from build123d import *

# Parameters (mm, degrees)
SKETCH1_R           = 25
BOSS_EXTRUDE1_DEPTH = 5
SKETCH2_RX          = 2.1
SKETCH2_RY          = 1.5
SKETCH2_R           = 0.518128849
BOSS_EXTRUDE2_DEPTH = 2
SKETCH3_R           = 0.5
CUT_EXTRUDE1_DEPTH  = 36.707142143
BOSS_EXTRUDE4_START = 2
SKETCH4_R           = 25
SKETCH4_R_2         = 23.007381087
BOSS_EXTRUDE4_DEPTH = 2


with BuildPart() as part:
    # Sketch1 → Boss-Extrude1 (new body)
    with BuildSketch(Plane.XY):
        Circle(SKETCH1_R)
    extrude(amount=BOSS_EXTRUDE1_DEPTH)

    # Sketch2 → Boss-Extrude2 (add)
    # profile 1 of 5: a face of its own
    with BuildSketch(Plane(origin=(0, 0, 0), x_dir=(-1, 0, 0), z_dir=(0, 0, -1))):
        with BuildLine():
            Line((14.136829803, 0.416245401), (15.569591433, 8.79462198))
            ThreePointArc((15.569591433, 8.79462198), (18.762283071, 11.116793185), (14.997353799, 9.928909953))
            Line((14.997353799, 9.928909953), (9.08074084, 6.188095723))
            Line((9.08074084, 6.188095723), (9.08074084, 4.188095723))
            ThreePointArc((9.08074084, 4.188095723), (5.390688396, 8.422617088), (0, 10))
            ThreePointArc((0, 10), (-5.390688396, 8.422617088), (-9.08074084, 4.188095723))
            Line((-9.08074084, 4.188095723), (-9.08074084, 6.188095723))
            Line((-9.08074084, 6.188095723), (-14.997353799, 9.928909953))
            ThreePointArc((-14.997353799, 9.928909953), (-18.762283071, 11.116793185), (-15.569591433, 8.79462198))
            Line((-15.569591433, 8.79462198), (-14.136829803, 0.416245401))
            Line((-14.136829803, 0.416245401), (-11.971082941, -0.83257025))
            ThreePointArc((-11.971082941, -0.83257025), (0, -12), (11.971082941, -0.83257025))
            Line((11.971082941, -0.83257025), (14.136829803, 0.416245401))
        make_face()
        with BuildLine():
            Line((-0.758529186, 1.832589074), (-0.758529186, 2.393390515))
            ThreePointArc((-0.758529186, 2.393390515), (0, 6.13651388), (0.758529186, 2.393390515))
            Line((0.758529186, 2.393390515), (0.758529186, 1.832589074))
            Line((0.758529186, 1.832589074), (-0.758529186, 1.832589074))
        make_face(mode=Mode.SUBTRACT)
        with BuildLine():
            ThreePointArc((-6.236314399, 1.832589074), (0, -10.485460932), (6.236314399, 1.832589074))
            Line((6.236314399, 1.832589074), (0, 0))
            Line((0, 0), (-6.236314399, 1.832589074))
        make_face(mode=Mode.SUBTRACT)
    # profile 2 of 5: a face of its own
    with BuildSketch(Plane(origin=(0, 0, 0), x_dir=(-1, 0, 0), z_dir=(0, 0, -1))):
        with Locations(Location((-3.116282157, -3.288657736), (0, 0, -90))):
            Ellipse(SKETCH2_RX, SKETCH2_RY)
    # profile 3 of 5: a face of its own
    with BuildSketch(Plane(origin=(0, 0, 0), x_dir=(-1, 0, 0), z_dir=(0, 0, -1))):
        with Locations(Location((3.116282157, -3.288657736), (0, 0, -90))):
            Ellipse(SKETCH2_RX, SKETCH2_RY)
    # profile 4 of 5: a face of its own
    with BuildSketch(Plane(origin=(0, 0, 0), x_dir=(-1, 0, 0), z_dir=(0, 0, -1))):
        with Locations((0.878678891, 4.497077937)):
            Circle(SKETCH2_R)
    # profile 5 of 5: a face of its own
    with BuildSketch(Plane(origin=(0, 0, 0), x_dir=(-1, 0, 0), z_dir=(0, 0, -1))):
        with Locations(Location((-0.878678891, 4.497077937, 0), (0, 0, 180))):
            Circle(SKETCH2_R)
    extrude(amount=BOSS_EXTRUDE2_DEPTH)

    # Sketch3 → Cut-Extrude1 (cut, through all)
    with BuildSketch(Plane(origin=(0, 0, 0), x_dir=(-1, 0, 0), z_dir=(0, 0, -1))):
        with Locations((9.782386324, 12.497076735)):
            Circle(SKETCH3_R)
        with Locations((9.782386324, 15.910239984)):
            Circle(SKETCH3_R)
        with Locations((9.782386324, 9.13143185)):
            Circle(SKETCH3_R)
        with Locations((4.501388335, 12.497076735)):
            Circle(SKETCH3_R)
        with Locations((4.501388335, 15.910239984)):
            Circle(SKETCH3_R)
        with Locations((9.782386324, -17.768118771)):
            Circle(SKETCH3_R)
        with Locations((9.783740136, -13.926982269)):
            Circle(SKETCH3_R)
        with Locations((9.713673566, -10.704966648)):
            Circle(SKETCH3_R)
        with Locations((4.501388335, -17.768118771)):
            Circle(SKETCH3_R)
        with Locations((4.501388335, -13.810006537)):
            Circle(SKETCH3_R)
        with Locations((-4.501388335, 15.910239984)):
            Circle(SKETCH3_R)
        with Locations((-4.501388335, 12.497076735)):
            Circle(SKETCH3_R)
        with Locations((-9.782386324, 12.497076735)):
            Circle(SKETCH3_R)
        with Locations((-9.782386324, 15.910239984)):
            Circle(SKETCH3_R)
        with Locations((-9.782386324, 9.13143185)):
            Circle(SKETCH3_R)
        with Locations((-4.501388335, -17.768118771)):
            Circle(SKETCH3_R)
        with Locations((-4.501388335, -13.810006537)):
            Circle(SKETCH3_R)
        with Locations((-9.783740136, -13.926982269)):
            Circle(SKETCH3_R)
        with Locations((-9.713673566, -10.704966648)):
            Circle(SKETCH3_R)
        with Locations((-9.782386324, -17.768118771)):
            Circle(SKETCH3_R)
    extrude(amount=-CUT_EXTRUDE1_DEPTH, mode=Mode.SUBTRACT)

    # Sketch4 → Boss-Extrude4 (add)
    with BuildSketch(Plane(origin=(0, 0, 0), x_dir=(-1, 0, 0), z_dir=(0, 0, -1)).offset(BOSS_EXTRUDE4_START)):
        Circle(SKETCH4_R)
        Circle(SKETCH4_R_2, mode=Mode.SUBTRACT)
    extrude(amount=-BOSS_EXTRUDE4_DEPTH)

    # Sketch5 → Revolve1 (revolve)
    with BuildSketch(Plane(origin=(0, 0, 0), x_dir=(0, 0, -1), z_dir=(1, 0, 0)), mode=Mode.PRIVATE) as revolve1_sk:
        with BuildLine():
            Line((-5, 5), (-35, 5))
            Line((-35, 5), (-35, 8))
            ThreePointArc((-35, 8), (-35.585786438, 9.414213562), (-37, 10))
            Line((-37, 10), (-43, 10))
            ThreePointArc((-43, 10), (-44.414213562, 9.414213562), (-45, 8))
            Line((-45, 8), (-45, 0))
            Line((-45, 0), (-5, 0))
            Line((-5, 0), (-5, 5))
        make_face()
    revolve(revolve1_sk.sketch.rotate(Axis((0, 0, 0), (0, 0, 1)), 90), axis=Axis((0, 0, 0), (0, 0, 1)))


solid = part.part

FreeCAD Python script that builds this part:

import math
import FreeCAD as App
import Part
import Sketcher
from FreeCAD import Vector

doc = App.newDocument("Part")
body = doc.addObject("PartDesign::Body", "Body")

# Sketch on XY plane
sketch1 = body.newObject("Sketcher::SketchObject", "Sketch")
sketch1.AttachmentSupport = (doc.getObject("XY_Plane"), [""])
sketch1.MapMode = "FlatFace"
sketch1.addGeometry(Part.Circle(Vector(0, 0, 0), Vector(0, 0, 1), 25), False)
sketch1.addConstraint([
    Sketcher.Constraint("Coincident", 0, 3, -1, 1),
    Sketcher.Constraint("Diameter", 0, 50.0),
])
pad1 = body.newObject("PartDesign::Pad", "Pad")
pad1.Profile = sketch1
pad1.Length = 5

# Sketch on XY plane
sketch2 = body.newObject("Sketcher::SketchObject", "Sketch001")
sketch2.AttachmentSupport = (doc.getObject("XY_Plane"), [""])
sketch2.MapMode = "FlatFace"
sketch2.addGeometry([
    Part.LineSegment(Vector(-14.13683, 0.416245, 0), Vector(-15.569591, 8.794622, 0)),  # 0
    Part.ArcOfCircle(Part.Circle(Vector(-16.976648, 10.215957, 0), Vector(0, 0, 1), 2), math.radians(-8.251785), math.radians(314.710754)),  # 1
    Part.LineSegment(Vector(-14.997354, 9.92891, 0), Vector(-9.080741, 6.188096, 0)),  # 2
    Part.LineSegment(Vector(-9.080741, 6.188096, 0), Vector(-9.080741, 4.188096, 0)),  # 3
    Part.ArcOfCircle(Part.Circle(Vector(0, 0, 0), Vector(0, 0, 1), 10), math.radians(90), math.radians(155.240546)),  # 4
    Part.ArcOfCircle(Part.Circle(Vector(0, 0, 0), Vector(0, 0, 1), 10), math.radians(24.759454), math.radians(90)),  # 5
    Part.LineSegment(Vector(9.080741, 4.188096, 0), Vector(9.080741, 6.188096, 0)),  # 6
    Part.LineSegment(Vector(9.080741, 6.188096, 0), Vector(14.997354, 9.92891, 0)),  # 7
    Part.ArcOfCircle(Part.Circle(Vector(16.976648, 10.215957, 0), Vector(0, 0, 1), 2), math.radians(-134.710754), math.radians(188.251785)),  # 8
    Part.LineSegment(Vector(15.569591, 8.794622, 0), Vector(14.13683, 0.416245, 0)),  # 9
    Part.LineSegment(Vector(14.13683, 0.416245, 0), Vector(11.971083, -0.83257, 0)),  # 10
    Part.ArcOfCircle(Part.Circle(Vector(0, 0, 0), Vector(0, 0, 1), 12), math.radians(-176.021574), math.radians(-3.978426)),  # 11
    Part.LineSegment(Vector(-11.971083, -0.83257, 0), Vector(-14.13683, 0.416245, 0)),  # 12
    Part.ArcOfCircle(Part.Circle(Vector(0, -2.747793, 0), Vector(0, 0, 1), 7.737668), math.radians(143.70386), math.radians(396.29614)),  # 13
    Part.LineSegment(Vector(6.236314, 1.832589, 0), Vector(0, 0, 0)),  # 14
    Part.LineSegment(Vector(0, 0, 0), Vector(-6.236314, 1.832589, 0)),  # 15
    Part.LineSegment(Vector(-0.758529, 1.832589, 0), Vector(0.758529, 1.832589, 0)),  # 16
    Part.LineSegment(Vector(0.758529, 1.832589, 0), Vector(0.758529, 2.393391, 0)),  # 17
    Part.ArcOfCircle(Part.Circle(Vector(0, 4.188096, 0), Vector(0, 0, 1), 1.948418), math.radians(-67.08873), math.radians(247.08873)),  # 18
    Part.LineSegment(Vector(-0.758529, 2.393391, 0), Vector(-0.758529, 1.832589, 0)),  # 19
    Part.Ellipse(Vector(3.116282, -5.388658, 0), Vector(4.616282, -3.288658, 0), Vector(3.116282, -3.288658, 0)),  # 20
    Part.Ellipse(Vector(-3.116282, -5.388658, 0), Vector(-1.616282, -3.288658, 0), Vector(-3.116282, -3.288658, 0)),  # 21
    Part.Circle(Vector(-0.878679, 4.497078, 0), Vector(0, 0, 1), 0.518129),  # 22
    Part.Circle(Vector(0.878679, 4.497078, 0), Vector(0, 0, 1), 0.518129),  # 23
], False)
sketch2.addConstraint([
    Sketcher.Constraint("Block", 20),
    Sketcher.Constraint("Block", 21),
    Sketcher.Constraint("Coincident", 0, 2, 1, 2),
    Sketcher.Constraint("Coincident", 1, 1, 2, 1),
    Sketcher.Constraint("Coincident", 2, 2, 3, 1),
    Sketcher.Constraint("Coincident", 3, 2, 4, 2),
    Sketcher.Constraint("Tangent", 4, 1, 5, 2),
    Sketcher.Constraint("Coincident", 5, 1, 6, 1),
    Sketcher.Constraint("Coincident", 6, 2, 7, 1),
    Sketcher.Constraint("Coincident", 7, 2, 8, 2),
    Sketcher.Constraint("Coincident", 8, 1, 9, 1),
    Sketcher.Constraint("Coincident", 9, 2, 10, 1),
    Sketcher.Constraint("Coincident", 10, 2, 11, 2),
    Sketcher.Constraint("Coincident", 11, 1, 12, 1),
    Sketcher.Constraint("Coincident", 12, 2, 0, 1),
    Sketcher.Constraint("Coincident", 13, 2, 14, 1),
    Sketcher.Constraint("Coincident", 14, 2, 15, 1),
    Sketcher.Constraint("Coincident", 15, 2, 13, 1),
    Sketcher.Constraint("Coincident", 16, 2, 17, 1),
    Sketcher.Constraint("Coincident", 17, 2, 18, 1),
    Sketcher.Constraint("Coincident", 18, 2, 19, 1),
    Sketcher.Constraint("Coincident", 19, 2, 16, 1),
    Sketcher.Constraint("Vertical", 3),
    Sketcher.Constraint("Vertical", 6),
    Sketcher.Constraint("Horizontal", 16),
    Sketcher.Constraint("Vertical", 17),
    Sketcher.Constraint("Vertical", 19),
    Sketcher.Constraint("Coincident", 4, 3, -1, 1),
    Sketcher.Constraint("Coincident", 11, 3, -1, 1),
    Sketcher.Constraint("Coincident", 14, 2, -1, 1),
    Sketcher.Constraint("Equal", 4, 5),
    Sketcher.Constraint("Equal", 1, 8),
    Sketcher.Constraint("Equal", 22, 23),
    Sketcher.Constraint("Symmetric", 1, 3, 8, 3, -2),
    Sketcher.Constraint("Symmetric", 22, 3, 23, 3, -2),
    Sketcher.Constraint("Symmetric", 2, 2, 6, 2, -2),
    Sketcher.Constraint("Symmetric", 9, 2, 12, 2, -2),
    Sketcher.Constraint("Symmetric", 13, 2, 15, 2, -2),
    Sketcher.Constraint("Symmetric", 17, 2, 18, 2, -2),
    Sketcher.Constraint("PointOnObject", 4, 1, -2),
    Sketcher.Constraint("Horizontal", 18, 3, 3, 2),
    Sketcher.Constraint("Horizontal", 1, 1, 7, 2),
    Sketcher.Constraint("Horizontal", 0, 2, 8, 1),
    Sketcher.Constraint("Horizontal", 10, 2, 11, 1),
    Sketcher.Constraint("Horizontal", 15, 2, 16, 2),
    Sketcher.Constraint("Radius", 1, 2.0),
    Sketcher.Constraint("Radius", 4, 10.0),
    Sketcher.Constraint("Radius", 11, 12.0),
    Sketcher.Constraint("DistanceY", 3, 2, 3, 1, 2.0),
    Sketcher.Constraint("Distance", 2, 7.0),
    Sketcher.Constraint("Distance", 0, 8.5),
    Sketcher.Constraint("Distance", 10, 2.5),
    Sketcher.Constraint("Distance", 14, 6.5),
    Sketcher.Constraint("Radius", 13, 7.737668),
    Sketcher.Constraint("Radius", 18, 1.948418),
    Sketcher.Constraint("Diameter", 22, 1.036258),
    Sketcher.Constraint("DistanceY", 17, 1, 17, 2, 0.560801),
    Sketcher.Constraint("DistanceX", 16, 1, 16, 2, 1.517058),
    Sketcher.Constraint("DistanceX", 22, 3, -1, 1, 0.878679),
    Sketcher.Constraint("DistanceX", 0, 2, -1, 1, 15.569591),
    Sketcher.Constraint("DistanceY", -1, 1, 0, 2, 8.794622),
    Sketcher.Constraint("DistanceY", -1, 1, 1, 1, 9.92891),
    Sketcher.Constraint("DistanceX", 2, 2, -1, 1, 9.080741),
    Sketcher.Constraint("DistanceX", -1, 1, 9, 2, 14.13683),
    Sketcher.Constraint("DistanceY", 13, 3, 22, 3, 7.24487),
])
pad2 = body.newObject("PartDesign::Pad", "Pad001")
pad2.Profile = sketch2
pad2.Length = 2
pad2.Reversed = True

# Sketch on XY plane
sketch3 = body.newObject("Sketcher::SketchObject", "Sketch002")
sketch3.AttachmentSupport = (doc.getObject("XY_Plane"), [""])
sketch3.MapMode = "FlatFace"
sketch3.addGeometry([
    Part.Circle(Vector(-9.8, 12.5, 0), Vector(0, 0, 1), 0.5),  # 0
    Part.Circle(Vector(-9.8, 15.9, 0), Vector(0, 0, 1), 0.5),  # 1
    Part.Circle(Vector(-9.8, 9.1, 0), Vector(0, 0, 1), 0.5),  # 2
    Part.Circle(Vector(-4.5, 12.5, 0), Vector(0, 0, 1), 0.5),  # 3
    Part.Circle(Vector(-4.5, 15.9, 0), Vector(0, 0, 1), 0.5),  # 4
    Part.Circle(Vector(-9.8, -17.8, 0), Vector(0, 0, 1), 0.5),  # 5
    Part.Circle(Vector(-9.8, -13.9, 0), Vector(0, 0, 1), 0.5),  # 6
    Part.Circle(Vector(-9.7, -10.7, 0), Vector(0, 0, 1), 0.5),  # 7
    Part.Circle(Vector(-4.5, -17.8, 0), Vector(0, 0, 1), 0.5),  # 8
    Part.Circle(Vector(-4.5, -13.8, 0), Vector(0, 0, 1), 0.5),  # 9
    Part.Circle(Vector(4.5, 15.9, 0), Vector(0, 0, 1), 0.5),  # 10
    Part.Circle(Vector(4.5, 12.5, 0), Vector(0, 0, 1), 0.5),  # 11
    Part.Circle(Vector(9.8, 12.5, 0), Vector(0, 0, 1), 0.5),  # 12
    Part.Circle(Vector(9.8, 15.9, 0), Vector(0, 0, 1), 0.5),  # 13
    Part.Circle(Vector(9.8, 9.1, 0), Vector(0, 0, 1), 0.5),  # 14
    Part.Circle(Vector(4.5, -17.8, 0), Vector(0, 0, 1), 0.5),  # 15
    Part.Circle(Vector(4.5, -13.8, 0), Vector(0, 0, 1), 0.5),  # 16
    Part.Circle(Vector(9.8, -13.9, 0), Vector(0, 0, 1), 0.5),  # 17
    Part.Circle(Vector(9.7, -10.7, 0), Vector(0, 0, 1), 0.5),  # 18
    Part.Circle(Vector(9.8, -17.8, 0), Vector(0, 0, 1), 0.5),  # 19
], False)
sketch3.addConstraint([
    Sketcher.Constraint("Equal", 0, 1),
    Sketcher.Constraint("Equal", 1, 2),
    Sketcher.Constraint("Equal", 2, 3),
    Sketcher.Constraint("Equal", 3, 4),
    Sketcher.Constraint("Equal", 4, 5),
    Sketcher.Constraint("Equal", 5, 6),
    Sketcher.Constraint("Equal", 6, 7),
    Sketcher.Constraint("Equal", 7, 8),
    Sketcher.Constraint("Equal", 8, 9),
    Sketcher.Constraint("Equal", 9, 10),
    Sketcher.Constraint("Equal", 10, 11),
    Sketcher.Constraint("Equal", 11, 12),
    Sketcher.Constraint("Equal", 12, 13),
    Sketcher.Constraint("Equal", 13, 14),
    Sketcher.Constraint("Equal", 14, 15),
    Sketcher.Constraint("Equal", 15, 16),
    Sketcher.Constraint("Equal", 16, 17),
    Sketcher.Constraint("Equal", 17, 18),
    Sketcher.Constraint("Equal", 18, 19),
    Sketcher.Constraint("Symmetric", 4, 3, 10, 3, -2),
    Sketcher.Constraint("Symmetric", 3, 3, 11, 3, -2),
    Sketcher.Constraint("Symmetric", 0, 3, 12, 3, -2),
    Sketcher.Constraint("Symmetric", 1, 3, 13, 3, -2),
    Sketcher.Constraint("Symmetric", 2, 3, 14, 3, -2),
    Sketcher.Constraint("Symmetric", 8, 3, 15, 3, -2),
    Sketcher.Constraint("Symmetric", 9, 3, 16, 3, -2),
    Sketcher.Constraint("Symmetric", 6, 3, 17, 3, -2),
    Sketcher.Constraint("Symmetric", 7, 3, 18, 3, -2),
    Sketcher.Constraint("Symmetric", 5, 3, 19, 3, -2),
    Sketcher.Constraint("Horizontal", 0, 3, 3, 3),
    Sketcher.Constraint("Horizontal", 1, 3, 4, 3),
    Sketcher.Constraint("Horizontal", 5, 3, 8, 3),
    Sketcher.Constraint("Vertical", 0, 3, 1, 3),
    Sketcher.Constraint("Vertical", 1, 3, 2, 3),
    Sketcher.Constraint("Vertical", 3, 3, 4, 3),
    Sketcher.Constraint("Vertical", 2, 3, 5, 3),
    Sketcher.Constraint("Vertical", 4, 3, 8, 3),
    Sketcher.Constraint("Vertical", 8, 3, 9, 3),
    Sketcher.Constraint("Diameter", 0, 1.0),
    Sketcher.Constraint("DistanceY", 7, 3, 2, 3, 19.836398),
    Sketcher.Constraint("DistanceY", -1, 1, 1, 3, 15.91024),
    Sketcher.Constraint("DistanceY", -1, 1, 2, 3, 9.131432),
    Sketcher.Constraint("DistanceX", 3, 3, -1, 1, 4.501388),
    Sketcher.Constraint("DistanceY", 5, 3, -1, 1, 17.768119),
    Sketcher.Constraint("DistanceX", 6, 3, -1, 1, 9.78374),
    Sketcher.Constraint("DistanceY", 6, 3, 0, 3, 26.424059),
    Sketcher.Constraint("DistanceY", 9, 3, 7, 3, 3.10504),
    Sketcher.Constraint("DistanceX", 7, 3, 15, 3, 14.215062),
    Sketcher.Constraint("DistanceX", 0, 3, -1, 1, 9.782386),
    Sketcher.Constraint("DistanceY", -1, 1, 0, 3, 12.497077),
])
pocket1 = body.newObject("PartDesign::Pocket", "Pocket")
pocket1.Profile = sketch3
pocket1.Type = "ThroughAll"
pocket1.Reversed = True

# Sketch on XY plane
sketch4 = body.newObject("Sketcher::SketchObject", "Sketch003")
sketch4.AttachmentSupport = (doc.getObject("XY_Plane"), [""])
sketch4.MapMode = "FlatFace"
sketch4.AttachmentOffset = App.Placement(Vector(0, 0, -2), App.Rotation())
sketch4.addGeometry([
    Part.Circle(Vector(0, 0, 0), Vector(0, 0, 1), 25),
    Part.Circle(Vector(0, 0, 0), Vector(0, 0, 1), 23),
], False)
sketch4.addConstraint([
    Sketcher.Constraint("Coincident", 0, 3, -1, 1),
    Sketcher.Constraint("Coincident", 1, 3, -1, 1),
    Sketcher.Constraint("Diameter", 0, 50.0),
    Sketcher.Constraint("Diameter", 1, 46.014762),
])
pad3 = body.newObject("PartDesign::Pad", "Pad002")
pad3.Profile = sketch4
pad3.Length = 2

# Sketch on YZ plane
sketch5 = body.newObject("Sketcher::SketchObject", "Sketch004")
sketch5.AttachmentSupport = (doc.getObject("YZ_Plane"), [""])
sketch5.MapMode = "FlatFace"
sketch5.addGeometry([
    Part.LineSegment(Vector(5, 5, 0), Vector(5, 35, 0)),  # 0
    Part.LineSegment(Vector(5, 35, 0), Vector(8, 35, 0)),  # 1
    Part.ArcOfCircle(Part.Circle(Vector(8, 37, 0), Vector(0, 0, 1), 2), math.radians(-90), math.radians(0)),  # 2
    Part.LineSegment(Vector(10, 37, 0), Vector(10, 43, 0)),  # 3
    Part.ArcOfCircle(Part.Circle(Vector(8, 43, 0), Vector(0, 0, 1), 2), math.radians(0), math.radians(90)),  # 4
    Part.LineSegment(Vector(8, 45, 0), Vector(0, 45, 0)),  # 5
    Part.LineSegment(Vector(0, 45, 0), Vector(0, 5, 0)),  # 6
    Part.LineSegment(Vector(0, 5, 0), Vector(5, 5, 0)),  # 7
], False)
sketch5.addConstraint([
    Sketcher.Constraint("Coincident", 0, 2, 1, 1),
    Sketcher.Constraint("Tangent", 1, 2, 2, 1),
    Sketcher.Constraint("Tangent", 2, 2, 3, 1),
    Sketcher.Constraint("Tangent", 3, 2, 4, 1),
    Sketcher.Constraint("Tangent", 4, 2, 5, 1),
    Sketcher.Constraint("Coincident", 5, 2, 6, 1),
    Sketcher.Constraint("Coincident", 6, 2, 7, 1),
    Sketcher.Constraint("Coincident", 7, 2, 0, 1),
    Sketcher.Constraint("Vertical", 0),
    Sketcher.Constraint("Horizontal", 1),
    Sketcher.Constraint("Vertical", 3),
    Sketcher.Constraint("Horizontal", 5),
    Sketcher.Constraint("Vertical", 6),
    Sketcher.Constraint("Horizontal", 7),
    Sketcher.Constraint("Equal", 2, 4),
    Sketcher.Constraint("PointOnObject", 5, 2, -2),
    Sketcher.Constraint("Radius", 2, 2.0),
    Sketcher.Constraint("DistanceX", 1, 1, 1, 2, 3.0),
    Sketcher.Constraint("DistanceX", 5, 2, 5, 1, 8.0),
    Sketcher.Constraint("DistanceY", 0, 1, 0, 2, 30.0),
    Sketcher.Constraint("DistanceY", 3, 1, 3, 2, 6.0),
    Sketcher.Constraint("DistanceY", -1, 1, 2, 3, 37.0),
])
revolution = body.newObject("PartDesign::Revolution", "Revolution")
revolution.Profile = sketch5
revolution.ReferenceAxis = (sketch5, ["V_Axis"])
revolution.Angle = 360

doc.recompute()
